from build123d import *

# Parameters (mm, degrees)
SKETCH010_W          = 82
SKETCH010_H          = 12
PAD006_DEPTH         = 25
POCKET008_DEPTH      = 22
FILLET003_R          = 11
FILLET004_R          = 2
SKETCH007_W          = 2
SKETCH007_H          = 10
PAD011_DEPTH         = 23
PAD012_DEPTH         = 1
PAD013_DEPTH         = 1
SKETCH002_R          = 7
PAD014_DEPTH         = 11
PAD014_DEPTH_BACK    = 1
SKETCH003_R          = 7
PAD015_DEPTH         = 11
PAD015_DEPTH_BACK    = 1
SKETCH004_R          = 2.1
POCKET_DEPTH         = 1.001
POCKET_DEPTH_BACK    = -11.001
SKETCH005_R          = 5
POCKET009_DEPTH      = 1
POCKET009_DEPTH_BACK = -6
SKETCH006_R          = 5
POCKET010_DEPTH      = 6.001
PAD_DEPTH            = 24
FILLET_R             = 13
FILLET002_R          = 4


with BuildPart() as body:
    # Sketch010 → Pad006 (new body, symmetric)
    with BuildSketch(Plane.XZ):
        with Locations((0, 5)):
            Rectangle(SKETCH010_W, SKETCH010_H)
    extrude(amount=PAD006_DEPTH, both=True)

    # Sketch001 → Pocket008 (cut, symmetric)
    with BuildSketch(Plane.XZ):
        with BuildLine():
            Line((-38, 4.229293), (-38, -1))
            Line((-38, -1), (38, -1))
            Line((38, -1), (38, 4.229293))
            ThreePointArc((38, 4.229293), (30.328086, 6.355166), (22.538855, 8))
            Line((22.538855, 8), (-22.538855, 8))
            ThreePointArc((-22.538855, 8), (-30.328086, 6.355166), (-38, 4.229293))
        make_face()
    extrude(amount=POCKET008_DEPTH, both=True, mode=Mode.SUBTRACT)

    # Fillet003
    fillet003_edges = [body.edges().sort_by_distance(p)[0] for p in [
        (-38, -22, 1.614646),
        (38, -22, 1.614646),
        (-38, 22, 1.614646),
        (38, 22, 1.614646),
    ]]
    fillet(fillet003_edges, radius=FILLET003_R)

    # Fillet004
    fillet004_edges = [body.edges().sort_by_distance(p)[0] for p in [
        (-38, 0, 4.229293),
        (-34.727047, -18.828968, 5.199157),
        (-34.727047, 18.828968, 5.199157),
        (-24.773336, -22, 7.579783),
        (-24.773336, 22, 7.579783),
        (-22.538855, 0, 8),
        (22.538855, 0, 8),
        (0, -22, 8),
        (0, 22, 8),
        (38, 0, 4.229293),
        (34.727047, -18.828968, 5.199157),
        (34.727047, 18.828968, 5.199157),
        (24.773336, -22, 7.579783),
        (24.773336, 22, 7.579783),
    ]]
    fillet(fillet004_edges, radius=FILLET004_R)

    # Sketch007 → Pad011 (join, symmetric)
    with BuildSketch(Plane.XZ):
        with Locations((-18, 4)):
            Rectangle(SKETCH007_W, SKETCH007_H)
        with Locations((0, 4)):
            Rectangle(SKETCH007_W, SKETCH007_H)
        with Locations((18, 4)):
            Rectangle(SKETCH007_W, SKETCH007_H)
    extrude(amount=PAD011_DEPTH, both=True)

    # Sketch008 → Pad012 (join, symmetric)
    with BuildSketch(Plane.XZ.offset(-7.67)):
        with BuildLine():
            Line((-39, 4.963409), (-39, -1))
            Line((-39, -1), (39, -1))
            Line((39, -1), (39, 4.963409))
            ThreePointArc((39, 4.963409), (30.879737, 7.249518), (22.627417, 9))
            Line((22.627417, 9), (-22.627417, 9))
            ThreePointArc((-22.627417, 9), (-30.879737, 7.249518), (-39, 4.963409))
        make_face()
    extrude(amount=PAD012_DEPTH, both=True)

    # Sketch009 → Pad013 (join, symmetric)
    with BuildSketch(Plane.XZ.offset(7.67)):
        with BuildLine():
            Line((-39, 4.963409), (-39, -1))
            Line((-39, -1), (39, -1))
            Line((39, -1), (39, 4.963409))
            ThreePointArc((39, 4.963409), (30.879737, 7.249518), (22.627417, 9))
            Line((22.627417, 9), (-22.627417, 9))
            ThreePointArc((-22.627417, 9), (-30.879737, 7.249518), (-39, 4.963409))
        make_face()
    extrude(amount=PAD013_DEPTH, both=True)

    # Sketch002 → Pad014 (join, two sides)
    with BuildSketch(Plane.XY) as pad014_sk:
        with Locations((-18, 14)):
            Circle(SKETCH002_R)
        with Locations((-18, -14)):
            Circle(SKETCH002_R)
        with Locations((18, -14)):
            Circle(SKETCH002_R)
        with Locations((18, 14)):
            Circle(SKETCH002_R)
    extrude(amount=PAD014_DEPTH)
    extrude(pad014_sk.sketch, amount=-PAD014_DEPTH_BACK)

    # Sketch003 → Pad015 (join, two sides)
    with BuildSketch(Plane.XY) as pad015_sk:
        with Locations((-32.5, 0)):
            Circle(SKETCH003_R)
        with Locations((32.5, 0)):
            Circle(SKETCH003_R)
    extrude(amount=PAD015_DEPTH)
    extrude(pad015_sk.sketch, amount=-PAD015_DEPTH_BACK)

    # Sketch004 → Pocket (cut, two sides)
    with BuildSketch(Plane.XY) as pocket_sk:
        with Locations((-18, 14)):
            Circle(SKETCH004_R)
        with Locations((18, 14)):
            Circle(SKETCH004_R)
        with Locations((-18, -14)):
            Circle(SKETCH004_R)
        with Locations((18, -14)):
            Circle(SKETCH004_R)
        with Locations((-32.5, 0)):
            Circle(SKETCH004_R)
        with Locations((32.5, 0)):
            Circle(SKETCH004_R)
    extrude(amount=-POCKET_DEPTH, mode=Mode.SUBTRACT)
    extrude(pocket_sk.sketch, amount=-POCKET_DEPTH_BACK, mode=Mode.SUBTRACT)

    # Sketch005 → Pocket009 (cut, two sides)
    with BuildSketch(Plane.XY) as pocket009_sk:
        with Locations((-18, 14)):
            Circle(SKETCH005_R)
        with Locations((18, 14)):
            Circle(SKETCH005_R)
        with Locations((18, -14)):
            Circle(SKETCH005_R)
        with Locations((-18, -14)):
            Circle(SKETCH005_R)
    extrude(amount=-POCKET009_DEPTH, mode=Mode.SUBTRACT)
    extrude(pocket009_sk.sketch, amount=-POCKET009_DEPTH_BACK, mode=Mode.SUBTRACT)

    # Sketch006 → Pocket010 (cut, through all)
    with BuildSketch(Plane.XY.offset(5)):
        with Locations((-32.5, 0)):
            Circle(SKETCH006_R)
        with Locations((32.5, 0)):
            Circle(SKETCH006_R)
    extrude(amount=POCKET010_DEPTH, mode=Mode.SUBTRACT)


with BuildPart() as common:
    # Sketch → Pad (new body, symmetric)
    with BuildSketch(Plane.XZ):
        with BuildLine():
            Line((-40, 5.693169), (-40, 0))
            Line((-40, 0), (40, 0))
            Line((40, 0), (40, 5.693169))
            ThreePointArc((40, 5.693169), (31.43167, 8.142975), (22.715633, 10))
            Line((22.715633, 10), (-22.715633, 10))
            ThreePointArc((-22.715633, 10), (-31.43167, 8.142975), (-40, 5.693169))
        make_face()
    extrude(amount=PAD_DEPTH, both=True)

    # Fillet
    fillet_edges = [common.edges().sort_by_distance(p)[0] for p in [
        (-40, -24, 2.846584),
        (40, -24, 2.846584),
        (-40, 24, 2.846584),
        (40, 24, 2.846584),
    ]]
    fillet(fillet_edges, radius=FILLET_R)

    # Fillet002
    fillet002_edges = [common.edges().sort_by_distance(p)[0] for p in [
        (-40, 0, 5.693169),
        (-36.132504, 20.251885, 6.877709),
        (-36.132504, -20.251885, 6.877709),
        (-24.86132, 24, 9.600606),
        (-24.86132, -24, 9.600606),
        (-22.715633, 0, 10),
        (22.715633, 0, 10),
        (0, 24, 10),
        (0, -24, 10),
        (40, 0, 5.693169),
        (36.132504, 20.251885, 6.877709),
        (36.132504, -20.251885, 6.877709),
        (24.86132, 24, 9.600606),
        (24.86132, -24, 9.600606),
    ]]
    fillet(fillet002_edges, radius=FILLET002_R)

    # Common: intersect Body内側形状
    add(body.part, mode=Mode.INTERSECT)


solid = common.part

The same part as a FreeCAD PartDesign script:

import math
import FreeCAD as App
import Part
import Sketcher
from FreeCAD import Vector


def edges_at(feature, points):
    """Names of the edges that pass closest to the given points."""
    edges = feature.Shape.Edges
    near = lambda p: min(range(len(edges)), key=lambda i: edges[i].distToShape(Part.Vertex(*p))[0])
    return sorted({f"Edge{near(p) + 1}" for p in points})


def add_polygon(sketch, points):
    """Adds a closed chain of lines whose ends are joined by coincident constraints."""
    first, n = sketch.GeometryCount, len(points)
    for a, b in zip(points, points[1:] + points[:1]):
        sketch.addGeometry(Part.LineSegment(App.Vector(*a, 0), App.Vector(*b, 0)), False)
    for i in range(n):
        sketch.addConstraint(Sketcher.Constraint("Coincident", first + i, 2, first + (i + 1) % n, 1))

doc = App.newDocument("Part")
body = doc.addObject("PartDesign::Body", "Body")

sketch1 = body.newObject("Sketcher::SketchObject", "Sketch")
sketch1.AttachmentSupport = (doc.getObject("XZ_Plane"), [""])
sketch1.MapMode = "FlatFace"
add_polygon(sketch1, [(-41, 11), (-41, -1), (41, -1), (41, 11)])
sketch1.addConstraint(Sketcher.Constraint("Vertical", 0))
sketch1.addConstraint(Sketcher.Constraint("Horizontal", 1))
sketch1.addConstraint(Sketcher.Constraint("Vertical", 2))
sketch1.addConstraint(Sketcher.Constraint("Horizontal", 3))
sketch1.addConstraint(Sketcher.Constraint("DistanceX", 1, 1, 1, 2, 82.0))
sketch1.addConstraint(Sketcher.Constraint("DistanceY", 0, 2, 0, 1, 12.0))
sketch1.addConstraint(Sketcher.Constraint("DistanceX", 0, 2, -1, 1, 41.0))
sketch1.addConstraint(Sketcher.Constraint("DistanceY", 0, 2, -1, 1, 1.0))
pad1 = body.newObject("PartDesign::Pad", "Pad")
pad1.Profile = sketch1
pad1.Length = 50
pad1.Midplane = True

sketch2 = body.newObject("Sketcher::SketchObject", "Sketch001")
sketch2.AttachmentSupport = (doc.getObject("XZ_Plane"), [""])
sketch2.MapMode = "FlatFace"
sketch2.addGeometry(Part.LineSegment(Vector(-38, 4.229293, 0), Vector(-38, -1, 0)), False)
sketch2.addGeometry(Part.LineSegment(Vector(-38, -1, 0), Vector(38, -1, 0)), False)
sketch2.addGeometry(Part.LineSegment(Vector(38, -1, 0), Vector(38, 4.229293, 0)), False)
sketch2.addGeometry(Part.ArcOfCircle(Part.Circle(Vector(0.000043, -117.999833, 0), Vector(0, 0, 1), 127.999828), math.radians(72.729992), math.radians(79.858213)), False)
sketch2.addGeometry(Part.LineSegment(Vector(22.538855, 8, 0), Vector(-22.538855, 8, 0)), False)
sketch2.addGeometry(Part.ArcOfCircle(Part.Circle(Vector(-0.000043, -117.999833, 0), Vector(0, 0, 1), 127.999828), math.radians(100.141787), math.radians(107.270008)), False)
sketch2.addConstraint(Sketcher.Constraint("Coincident", 0, 2, 1, 1))
sketch2.addConstraint(Sketcher.Constraint("Coincident", 1, 2, 2, 1))
sketch2.addConstraint(Sketcher.Constraint("Coincident", 2, 2, 3, 1))
sketch2.addConstraint(Sketcher.Constraint("Coincident", 3, 2, 4, 1))
sketch2.addConstraint(Sketcher.Constraint("Coincident", 4, 2, 5, 1))
sketch2.addConstraint(Sketcher.Constraint("Coincident", 5, 2, 0, 1))
sketch2.addConstraint(Sketcher.Constraint("Vertical", 0))
sketch2.addConstraint(Sketcher.Constraint("Horizontal", 1))
sketch2.addConstraint(Sketcher.Constraint("Vertical", 2))
sketch2.addConstraint(Sketcher.Constraint("Horizontal", 4))
sketch2.addConstraint(Sketcher.Constraint("Equal", 3, 5))
sketch2.addConstraint(Sketcher.Constraint("Symmetric", 3, 3, 5, 3, -2))
sketch2.addConstraint(Sketcher.Constraint("Horizontal", 2, 2, 5, 2))
sketch2.addConstraint(Sketcher.Constraint("DistanceX", 1, 1, 1, 2, 76.0))
sketch2.addConstraint(Sketcher.Constraint("DistanceY", 0, 2, -1, 1, 1.0))
sketch2.addConstraint(Sketcher.Constraint("DistanceY", -1, 1, 3, 2, 8.0))
sketch2.addConstraint(Sketcher.Constraint("Radius", 3, 127.999828))
sketch2.addConstraint(Sketcher.Constraint("DistanceX", 4, 2, 4, 1, 45.07771))
sketch2.addConstraint(Sketcher.Constraint("DistanceX", 5, 3, 3, 2, 22.538898))
pocket1 = body.newObject("PartDesign::Pocket", "Pocket")
pocket1.Profile = sketch2
pocket1.Length = 44
pocket1.Midplane = True
doc.recompute()

fillet = body.newObject("PartDesign::Fillet", "Fillet")
fillet.Base = (pocket1, edges_at(pocket1, [
    (-38, -22, 1.615),
    (38, -22, 1.615),
    (-38, 22, 1.615),
    (38, 22, 1.615),
]))
fillet.Radius = 11
doc.recompute()

fillet2 = body.newObject("PartDesign::Fillet", "Fillet001")
fillet2.Base = (fillet, edges_at(fillet, [
    (-38, 0, 4.229),
    (-34.727, -18.829, 5.199),
    (-34.727, 18.829, 5.199),
    (-24.773, -22, 7.58),
    (-24.773, 22, 7.58),
    (-22.539, 0, 8),
    (22.539, 0, 8),
    (0, -22, 8),
    (0, 22, 8),
    (38, 0, 4.229),
    (34.727, -18.829, 5.199),
    (34.727, 18.829, 5.199),
    (24.773, -22, 7.58),
    (24.773, 22, 7.58),
]))
fillet2.Radius = 2

sketch3 = body.newObject("Sketcher::SketchObject", "Sketch002")
sketch3.AttachmentSupport = (doc.getObject("XZ_Plane"), [""])
sketch3.MapMode = "FlatFace"
add_polygon(sketch3, [(-19, 9), (-19, -1), (-17, -1), (-17, 9)])
add_polygon(sketch3, [(-1, 9), (-1, -1), (1, -1), (1, 9)])
add_polygon(sketch3, [(17, 9), (17, -1), (19, -1), (19, 9)])
sketch3.addConstraint(Sketcher.Constraint("Vertical", 0))
sketch3.addConstraint(Sketcher.Constraint("Horizontal", 1))
sketch3.addConstraint(Sketcher.Constraint("Vertical", 2))
sketch3.addConstraint(Sketcher.Constraint("Horizontal", 3))
sketch3.addConstraint(Sketcher.Constraint("Vertical", 4))
sketch3.addConstraint(Sketcher.Constraint("Horizontal", 5))
sketch3.addConstraint(Sketcher.Constraint("Vertical", 6))
sketch3.addConstraint(Sketcher.Constraint("Horizontal", 7))
sketch3.addConstraint(Sketcher.Constraint("Vertical", 8))
sketch3.addConstraint(Sketcher.Constraint("Horizontal", 9))
sketch3.addConstraint(Sketcher.Constraint("Vertical", 10))
sketch3.addConstraint(Sketcher.Constraint("Horizontal", 11))
sketch3.addConstraint(Sketcher.Constraint("Symmetric", 1, 2, 8, 2, -2))
sketch3.addConstraint(Sketcher.Constraint("Symmetric", 3, 2, 10, 2, -2))
sketch3.addConstraint(Sketcher.Constraint("Horizontal", 1, 2, 4, 2))
sketch3.addConstraint(Sketcher.Constraint("Horizontal", 3, 2, 6, 2))
sketch3.addConstraint(Sketcher.Constraint("Equal", 3, 5))
sketch3.addConstraint(Sketcher.Constraint("DistanceX", 1, 1, 1, 2, 2.0))
sketch3.addConstraint(Sketcher.Constraint("DistanceY", 0, 2, 0, 1, 10.0))
sketch3.addConstraint(Sketcher.Constraint("DistanceX", 0, 2, -1, 1, 19.0))
sketch3.addConstraint(Sketcher.Constraint("DistanceY", 0, 2, -1, 1, 1.0))
sketch3.addConstraint(Sketcher.Constraint("DistanceX", 4, 2, -1, 1, 1.0))
pad2 = body.newObject("PartDesign::Pad", "Pad001")
pad2.Profile = sketch3
pad2.Length = 46
pad2.Midplane = True

sketch4 = body.newObject("Sketcher::SketchObject", "Sketch003")
sketch4.AttachmentSupport = (doc.getObject("XZ_Plane"), [""])
sketch4.MapMode = "FlatFace"
sketch4.AttachmentOffset = App.Placement(Vector(0, 0, -7.67), App.Rotation())
sketch4.addGeometry(Part.LineSegment(Vector(-39, 4.963409, 0), Vector(-39, -1, 0)), False)
sketch4.addGeometry(Part.LineSegment(Vector(-39, -1, 0), Vector(39, -1, 0)), False)
sketch4.addGeometry(Part.LineSegment(Vector(39, -1, 0), Vector(39, 4.963409, 0)), False)
sketch4.addGeometry(Part.ArcOfCircle(Part.Circle(Vector(-0.000027, -118.000105, 0), Vector(0, 0, 1), 129.000109), math.radians(72.402666), math.radians(79.897691)), False)
sketch4.addGeometry(Part.LineSegment(Vector(22.627417, 9, 0), Vector(-22.627417, 9, 0)), False)
sketch4.addGeometry(Part.ArcOfCircle(Part.Circle(Vector(0.000027, -118.000105, 0), Vector(0, 0, 1), 129.000109), math.radians(100.102309), math.radians(107.597334)), False)
sketch4.addConstraint(Sketcher.Constraint("Coincident", 0, 2, 1, 1))
sketch4.addConstraint(Sketcher.Constraint("Coincident", 1, 2, 2, 1))
sketch4.addConstraint(Sketcher.Constraint("Coincident", 2, 2, 3, 1))
sketch4.addConstraint(Sketcher.Constraint("Coincident", 3, 2, 4, 1))
sketch4.addConstraint(Sketcher.Constraint("Coincident", 4, 2, 5, 1))
sketch4.addConstraint(Sketcher.Constraint("Coincident", 5, 2, 0, 1))
sketch4.addConstraint(Sketcher.Constraint("Vertical", 0))
sketch4.addConstraint(Sketcher.Constraint("Horizontal", 1))
sketch4.addConstraint(Sketcher.Constraint("Vertical", 2))
sketch4.addConstraint(Sketcher.Constraint("Horizontal", 4))
sketch4.addConstraint(Sketcher.Constraint("Equal", 3, 5))
sketch4.addConstraint(Sketcher.Constraint("Symmetric", 3, 3, 5, 3, -2))
sketch4.addConstraint(Sketcher.Constraint("Horizontal", 2, 2, 5, 2))
sketch4.addConstraint(Sketcher.Constraint("DistanceX", 1, 1, 1, 2, 78.0))
sketch4.addConstraint(Sketcher.Constraint("DistanceY", 0, 2, -1, 1, 1.0))
sketch4.addConstraint(Sketcher.Constraint("DistanceY", -1, 1, 3, 2, 9.0))
sketch4.addConstraint(Sketcher.Constraint("Radius", 3, 129.000109))
sketch4.addConstraint(Sketcher.Constraint("DistanceY", 0, 2, 0, 1, 5.963409))
sketch4.addConstraint(Sketcher.Constraint("DistanceX", 4, 2, 4, 1, 45.254834))
pad3 = body.newObject("PartDesign::Pad", "Pad002")
pad3.Profile = sketch4
pad3.Length = 2
pad3.Midplane = True

sketch5 = body.newObject("Sketcher::SketchObject", "Sketch004")
sketch5.AttachmentSupport = (doc.getObject("XZ_Plane"), [""])
sketch5.MapMode = "FlatFace"
sketch5.AttachmentOffset = App.Placement(Vector(0, 0, 7.67), App.Rotation())
sketch5.addGeometry(Part.LineSegment(Vector(-39, 4.963409, 0), Vector(-39, -1, 0)), False)
sketch5.addGeometry(Part.LineSegment(Vector(-39, -1, 0), Vector(39, -1, 0)), False)
sketch5.addGeometry(Part.LineSegment(Vector(39, -1, 0), Vector(39, 4.963409, 0)), False)
sketch5.addGeometry(Part.ArcOfCircle(Part.Circle(Vector(-0.000027, -118.000105, 0), Vector(0, 0, 1), 129.000109), math.radians(72.402666), math.radians(79.897691)), False)
sketch5.addGeometry(Part.LineSegment(Vector(22.627417, 9, 0), Vector(-22.627417, 9, 0)), False)
sketch5.addGeometry(Part.ArcOfCircle(Part.Circle(Vector(0.000027, -118.000105, 0), Vector(0, 0, 1), 129.000109), math.radians(100.102309), math.radians(107.597334)), False)
sketch5.addConstraint(Sketcher.Constraint("Coincident", 0, 2, 1, 1))
sketch5.addConstraint(Sketcher.Constraint("Coincident", 1, 2, 2, 1))
sketch5.addConstraint(Sketcher.Constraint("Coincident", 2, 2, 3, 1))
sketch5.addConstraint(Sketcher.Constraint("Coincident", 3, 2, 4, 1))
sketch5.addConstraint(Sketcher.Constraint("Coincident", 4, 2, 5, 1))
sketch5.addConstraint(Sketcher.Constraint("Coincident", 5, 2, 0, 1))
sketch5.addConstraint(Sketcher.Constraint("Vertical", 0))
sketch5.addConstraint(Sketcher.Constraint("Horizontal", 1))
sketch5.addConstraint(Sketcher.Constraint("Vertical", 2))
sketch5.addConstraint(Sketcher.Constraint("Horizontal", 4))
sketch5.addConstraint(Sketcher.Constraint("Equal", 3, 5))
sketch5.addConstraint(Sketcher.Constraint("Symmetric", 3, 3, 5, 3, -2))
sketch5.addConstraint(Sketcher.Constraint("Horizontal", 2, 2, 5, 2))
sketch5.addConstraint(Sketcher.Constraint("DistanceX", 1, 1, 1, 2, 78.0))
sketch5.addConstraint(Sketcher.Constraint("DistanceY", 0, 2, -1, 1, 1.0))
sketch5.addConstraint(Sketcher.Constraint("DistanceY", -1, 1, 3, 2, 9.0))
sketch5.addConstraint(Sketcher.Constraint("Radius", 3, 129.000109))
sketch5.addConstraint(Sketcher.Constraint("DistanceY", 0, 2, 0, 1, 5.963409))
sketch5.addConstraint(Sketcher.Constraint("DistanceX", 4, 2, 4, 1, 45.254834))
pad4 = body.newObject("PartDesign::Pad", "Pad003")
pad4.Profile = sketch5
pad4.Length = 2
pad4.Midplane = True

sketch6 = body.newObject("Sketcher::SketchObject", "Sketch005")
sketch6.AttachmentSupport = (doc.getObject("XY_Plane"), [""])
sketch6.MapMode = "FlatFace"
sketch6.addGeometry(Part.Circle(Vector(-18, 14, 0), Vector(0, 0, 1), 7), False)
sketch6.addGeometry(Part.Circle(Vector(-18, -14, 0), Vector(0, 0, 1), 7), False)
sketch6.addGeometry(Part.Circle(Vector(18, -14, 0), Vector(0, 0, 1), 7), False)
sketch6.addGeometry(Part.Circle(Vector(18, 14, 0), Vector(0, 0, 1), 7), False)
sketch6.addConstraint(Sketcher.Constraint("Equal", 0, 1))
sketch6.addConstraint(Sketcher.Constraint("Equal", 1, 2))
sketch6.addConstraint(Sketcher.Constraint("Equal", 2, 3))
sketch6.addConstraint(Sketcher.Constraint("Symmetric", 0, 3, 2, 3, -1, 1))
sketch6.addConstraint(Sketcher.Constraint("Symmetric", 1, 3, 3, 3, -1, 1))
sketch6.addConstraint(Sketcher.Constraint("Symmetric", 1, 3, 2, 3, -2))
sketch6.addConstraint(Sketcher.Constraint("Diameter", 0, 14.0))
sketch6.addConstraint(Sketcher.Constraint("DistanceX", 0, 3, -1, 1, 18.0))
sketch6.addConstraint(Sketcher.Constraint("DistanceY", -1, 1, 0, 3, 14.0))
pad5 = body.newObject("PartDesign::Pad", "Pad004")
pad5.Profile = sketch6
pad5.Type = "TwoLengths"
pad5.Length = 11
pad5.Length2 = 1

sketch7 = body.newObject("Sketcher::SketchObject", "Sketch006")
sketch7.AttachmentSupport = (doc.getObject("XY_Plane"), [""])
sketch7.MapMode = "FlatFace"
sketch7.addGeometry(Part.Circle(Vector(-32, 0, 0), Vector(0, 0, 1), 7), False)
sketch7.addGeometry(Part.Circle(Vector(32, 0, 0), Vector(0, 0, 1), 7), False)
sketch7.addConstraint(Sketcher.Constraint("Equal", 0, 1))
sketch7.addConstraint(Sketcher.Constraint("Symmetric", 0, 3, 1, 3, -1, 1))
sketch7.addConstraint(Sketcher.Constraint("PointOnObject", 0, 3, -1))
sketch7.addConstraint(Sketcher.Constraint("Diameter", 0, 14.0))
sketch7.addConstraint(Sketcher.Constraint("DistanceX", 0, 3, 1, 3, 65.0))
pad6 = body.newObject("PartDesign::Pad", "Pad005")
pad6.Profile = sketch7
pad6.Type = "TwoLengths"
pad6.Length = 11
pad6.Length2 = 1

sketch8 = body.newObject("Sketcher::SketchObject", "Sketch007")
sketch8.AttachmentSupport = (doc.getObject("XY_Plane"), [""])
sketch8.MapMode = "FlatFace"
sketch8.addGeometry(Part.Circle(Vector(-18, 14, 0), Vector(0, 0, 1), 2.1), False)
sketch8.addGeometry(Part.Circle(Vector(18, 14, 0), Vector(0, 0, 1), 2.1), False)
sketch8.addGeometry(Part.Circle(Vector(-18, -14, 0), Vector(0, 0, 1), 2.1), False)
sketch8.addGeometry(Part.Circle(Vector(18, -14, 0), Vector(0, 0, 1), 2.1), False)
sketch8.addGeometry(Part.Circle(Vector(-32.5, 0, 0), Vector(0, 0, 1), 2.1), False)
sketch8.addGeometry(Part.Circle(Vector(32.5, 0, 0), Vector(0, 0, 1), 2.1), False)
sketch8.addConstraint(Sketcher.Constraint("Equal", 0, 1))
sketch8.addConstraint(Sketcher.Constraint("Equal", 1, 2))
sketch8.addConstraint(Sketcher.Constraint("Equal", 2, 3))
sketch8.addConstraint(Sketcher.Constraint("Equal", 3, 4))
sketch8.addConstraint(Sketcher.Constraint("Equal", 4, 5))
sketch8.addConstraint(Sketcher.Constraint("Symmetric", 1, 3, 2, 3, -1, 1))
sketch8.addConstraint(Sketcher.Constraint("Symmetric", 0, 3, 3, 3, -1, 1))
sketch8.addConstraint(Sketcher.Constraint("Symmetric", 4, 3, 5, 3, -1, 1))
sketch8.addConstraint(Sketcher.Constraint("Symmetric", 0, 3, 1, 3, -2))
sketch8.addConstraint(Sketcher.Constraint("PointOnObject", 4, 3, -1))
sketch8.addConstraint(Sketcher.Constraint("Diameter", 0, 4.2))
sketch8.addConstraint(Sketcher.Constraint("DistanceX", 0, 3, -1, 1, 18.0))
sketch8.addConstraint(Sketcher.Constraint("DistanceY", -1, 1, 0, 3, 14.0))
sketch8.addConstraint(Sketcher.Constraint("DistanceX", 4, 3, 5, 3, 65.0))
pocket2 = body.newObject("PartDesign::Pocket", "Pocket001")
pocket2.Profile = sketch8
pocket2.Type = "ThroughAll"
pocket2.Midplane = True

sketch9 = body.newObject("Sketcher::SketchObject", "Sketch008")
sketch9.AttachmentSupport = (doc.getObject("XY_Plane"), [""])
sketch9.MapMode = "FlatFace"
sketch9.addGeometry(Part.Circle(Vector(-18, 14, 0), Vector(0, 0, 1), 5), False)
sketch9.addGeometry(Part.Circle(Vector(18, 14, 0), Vector(0, 0, 1), 5), False)
sketch9.addGeometry(Part.Circle(Vector(18, -14, 0), Vector(0, 0, 1), 5), False)
sketch9.addGeometry(Part.Circle(Vector(-18, -14, 0), Vector(0, 0, 1), 5), False)
sketch9.addConstraint(Sketcher.Constraint("Equal", 0, 1))
sketch9.addConstraint(Sketcher.Constraint("Equal", 1, 2))
sketch9.addConstraint(Sketcher.Constraint("Equal", 2, 3))
sketch9.addConstraint(Sketcher.Constraint("Symmetric", 0, 3, 2, 3, -1, 1))
sketch9.addConstraint(Sketcher.Constraint("Symmetric", 1, 3, 3, 3, -1, 1))
sketch9.addConstraint(Sketcher.Constraint("Symmetric", 0, 3, 1, 3, -2))
sketch9.addConstraint(Sketcher.Constraint("Diameter", 0, 10.0))
sketch9.addConstraint(Sketcher.Constraint("DistanceX", 0, 3, -1, 1, 18.0))
sketch9.addConstraint(Sketcher.Constraint("DistanceY", -1, 1, 0, 3, 14.0))
pocket3 = body.newObject("PartDesign::Pocket", "Pocket002")
pocket3.Profile = sketch9
pocket3.Type = "TwoLengths"
pocket3.Length = 1
pocket3.Length2 = 6

sketch10 = body.newObject("Sketcher::SketchObject", "Sketch009")
sketch10.AttachmentSupport = (doc.getObject("XY_Plane"), [""])
sketch10.MapMode = "FlatFace"
sketch10.AttachmentOffset = App.Placement(Vector(0, 0, 5), App.Rotation())
sketch10.addGeometry(Part.Circle(Vector(-32, 0, 0), Vector(0, 0, 1), 5), False)
sketch10.addGeometry(Part.Circle(Vector(32, 0, 0), Vector(0, 0, 1), 5), False)
sketch10.addConstraint(Sketcher.Constraint("Equal", 0, 1))
sketch10.addConstraint(Sketcher.Constraint("Symmetric", 0, 3, 1, 3, -1, 1))
sketch10.addConstraint(Sketcher.Constraint("PointOnObject", 0, 3, -1))
sketch10.addConstraint(Sketcher.Constraint("Diameter", 0, 10.0))
sketch10.addConstraint(Sketcher.Constraint("DistanceX", 0, 3, 1, 3, 65.0))
pocket4 = body.newObject("PartDesign::Pocket", "Pocket003")
pocket4.Profile = sketch10
pocket4.Type = "ThroughAll"
pocket4.Reversed = True
body2 = doc.addObject("PartDesign::Body", "Body001")

sketch11 = body2.newObject("Sketcher::SketchObject", "Sketch010")
sketch11.AttachmentSupport = (doc.getObject("XZ_Plane001"), [""])
sketch11.MapMode = "FlatFace"
sketch11.addGeometry(Part.LineSegment(Vector(-40, 6, 0), Vector(-40, 0, 0)), False)
sketch11.addGeometry(Part.LineSegment(Vector(-40, 0, 0), Vector(40, 0, 0)), False)
sketch11.addGeometry(Part.LineSegment(Vector(40, 0, 0), Vector(40, 6, 0)), False)
sketch11.addGeometry(Part.ArcOfCircle(Part.Circle(Vector(0, -118, 0), Vector(0, 0, 1), 130), math.radians(72.08), math.radians(79.94)), False)
sketch11.addGeometry(Part.LineSegment(Vector(23, 10, 0), Vector(-23, 10, 0)), False)
sketch11.addGeometry(Part.ArcOfCircle(Part.Circle(Vector(0, -118, 0), Vector(0, 0, 1), 130), math.radians(100.06), math.radians(107.92)), False)
sketch11.addConstraint(Sketcher.Constraint("Coincident", 0, 2, 1, 1))
sketch11.addConstraint(Sketcher.Constraint("Coincident", 1, 2, 2, 1))
sketch11.addConstraint(Sketcher.Constraint("Coincident", 2, 2, 3, 1))
sketch11.addConstraint(Sketcher.Constraint("Coincident", 3, 2, 4, 1))
sketch11.addConstraint(Sketcher.Constraint("Coincident", 4, 2, 5, 1))
sketch11.addConstraint(Sketcher.Constraint("Coincident", 5, 2, 0, 1))
sketch11.addConstraint(Sketcher.Constraint("Vertical", 0))
sketch11.addConstraint(Sketcher.Constraint("Horizontal", 1))
sketch11.addConstraint(Sketcher.Constraint("Vertical", 2))
sketch11.addConstraint(Sketcher.Constraint("Horizontal", 4))
sketch11.addConstraint(Sketcher.Constraint("Coincident", 5, 3, 3, 3))
sketch11.addConstraint(Sketcher.Constraint("Equal", 3, 5))
sketch11.addConstraint(Sketcher.Constraint("Symmetric", 0, 2, 1, 2, -1, 1))
sketch11.addConstraint(Sketcher.Constraint("Horizontal", 2, 2, 5, 2))
sketch11.addConstraint(Sketcher.Constraint("Radius", 3, 129.999999))
sketch11.addConstraint(Sketcher.Constraint("DistanceX", 1, 1, 1, 2, 80.0))
sketch11.addConstraint(Sketcher.Constraint("DistanceY", 3, 3, -1, 1, 117.999999))
sketch11.addConstraint(Sketcher.Constraint("DistanceY", -1, 1, 3, 2, 10.0))
pad7 = body2.newObject("PartDesign::Pad", "Pad006")
pad7.Profile = sketch11
pad7.Length = 48
pad7.Midplane = True
doc.recompute()

fillet3 = body2.newObject("PartDesign::Fillet", "Fillet002")
fillet3.Base = (pad7, edges_at(pad7, [
    (-40, -24, 2.847),
    (40, -24, 2.847),
    (-40, 24, 2.847),
    (40, 24, 2.847),
]))
fillet3.Radius = 13
doc.recompute()

fillet4 = body2.newObject("PartDesign::Fillet", "Fillet003")
fillet4.Base = (fillet3, edges_at(fillet3, [
    (-40, 0, 5.693),
    (-36.133, 20.252, 6.878),
    (-36.133, -20.252, 6.878),
    (-24.861, 24, 9.601),
    (-24.861, -24, 9.601),
    (-22.716, 0, 10),
    (22.716, 0, 10),
    (0, 24, 10),
    (0, -24, 10),
    (40, 0, 5.693),
    (36.133, 20.252, 6.878),
    (36.133, -20.252, 6.878),
    (24.861, 24, 9.601),
    (24.861, -24, 9.601),
]))
fillet4.Radius = 4
doc.recompute()

boolean = body2.newObject("PartDesign::Boolean", "Boolean")
boolean.Type = "Common"
boolean.addObjects([body])

doc.recompute()
